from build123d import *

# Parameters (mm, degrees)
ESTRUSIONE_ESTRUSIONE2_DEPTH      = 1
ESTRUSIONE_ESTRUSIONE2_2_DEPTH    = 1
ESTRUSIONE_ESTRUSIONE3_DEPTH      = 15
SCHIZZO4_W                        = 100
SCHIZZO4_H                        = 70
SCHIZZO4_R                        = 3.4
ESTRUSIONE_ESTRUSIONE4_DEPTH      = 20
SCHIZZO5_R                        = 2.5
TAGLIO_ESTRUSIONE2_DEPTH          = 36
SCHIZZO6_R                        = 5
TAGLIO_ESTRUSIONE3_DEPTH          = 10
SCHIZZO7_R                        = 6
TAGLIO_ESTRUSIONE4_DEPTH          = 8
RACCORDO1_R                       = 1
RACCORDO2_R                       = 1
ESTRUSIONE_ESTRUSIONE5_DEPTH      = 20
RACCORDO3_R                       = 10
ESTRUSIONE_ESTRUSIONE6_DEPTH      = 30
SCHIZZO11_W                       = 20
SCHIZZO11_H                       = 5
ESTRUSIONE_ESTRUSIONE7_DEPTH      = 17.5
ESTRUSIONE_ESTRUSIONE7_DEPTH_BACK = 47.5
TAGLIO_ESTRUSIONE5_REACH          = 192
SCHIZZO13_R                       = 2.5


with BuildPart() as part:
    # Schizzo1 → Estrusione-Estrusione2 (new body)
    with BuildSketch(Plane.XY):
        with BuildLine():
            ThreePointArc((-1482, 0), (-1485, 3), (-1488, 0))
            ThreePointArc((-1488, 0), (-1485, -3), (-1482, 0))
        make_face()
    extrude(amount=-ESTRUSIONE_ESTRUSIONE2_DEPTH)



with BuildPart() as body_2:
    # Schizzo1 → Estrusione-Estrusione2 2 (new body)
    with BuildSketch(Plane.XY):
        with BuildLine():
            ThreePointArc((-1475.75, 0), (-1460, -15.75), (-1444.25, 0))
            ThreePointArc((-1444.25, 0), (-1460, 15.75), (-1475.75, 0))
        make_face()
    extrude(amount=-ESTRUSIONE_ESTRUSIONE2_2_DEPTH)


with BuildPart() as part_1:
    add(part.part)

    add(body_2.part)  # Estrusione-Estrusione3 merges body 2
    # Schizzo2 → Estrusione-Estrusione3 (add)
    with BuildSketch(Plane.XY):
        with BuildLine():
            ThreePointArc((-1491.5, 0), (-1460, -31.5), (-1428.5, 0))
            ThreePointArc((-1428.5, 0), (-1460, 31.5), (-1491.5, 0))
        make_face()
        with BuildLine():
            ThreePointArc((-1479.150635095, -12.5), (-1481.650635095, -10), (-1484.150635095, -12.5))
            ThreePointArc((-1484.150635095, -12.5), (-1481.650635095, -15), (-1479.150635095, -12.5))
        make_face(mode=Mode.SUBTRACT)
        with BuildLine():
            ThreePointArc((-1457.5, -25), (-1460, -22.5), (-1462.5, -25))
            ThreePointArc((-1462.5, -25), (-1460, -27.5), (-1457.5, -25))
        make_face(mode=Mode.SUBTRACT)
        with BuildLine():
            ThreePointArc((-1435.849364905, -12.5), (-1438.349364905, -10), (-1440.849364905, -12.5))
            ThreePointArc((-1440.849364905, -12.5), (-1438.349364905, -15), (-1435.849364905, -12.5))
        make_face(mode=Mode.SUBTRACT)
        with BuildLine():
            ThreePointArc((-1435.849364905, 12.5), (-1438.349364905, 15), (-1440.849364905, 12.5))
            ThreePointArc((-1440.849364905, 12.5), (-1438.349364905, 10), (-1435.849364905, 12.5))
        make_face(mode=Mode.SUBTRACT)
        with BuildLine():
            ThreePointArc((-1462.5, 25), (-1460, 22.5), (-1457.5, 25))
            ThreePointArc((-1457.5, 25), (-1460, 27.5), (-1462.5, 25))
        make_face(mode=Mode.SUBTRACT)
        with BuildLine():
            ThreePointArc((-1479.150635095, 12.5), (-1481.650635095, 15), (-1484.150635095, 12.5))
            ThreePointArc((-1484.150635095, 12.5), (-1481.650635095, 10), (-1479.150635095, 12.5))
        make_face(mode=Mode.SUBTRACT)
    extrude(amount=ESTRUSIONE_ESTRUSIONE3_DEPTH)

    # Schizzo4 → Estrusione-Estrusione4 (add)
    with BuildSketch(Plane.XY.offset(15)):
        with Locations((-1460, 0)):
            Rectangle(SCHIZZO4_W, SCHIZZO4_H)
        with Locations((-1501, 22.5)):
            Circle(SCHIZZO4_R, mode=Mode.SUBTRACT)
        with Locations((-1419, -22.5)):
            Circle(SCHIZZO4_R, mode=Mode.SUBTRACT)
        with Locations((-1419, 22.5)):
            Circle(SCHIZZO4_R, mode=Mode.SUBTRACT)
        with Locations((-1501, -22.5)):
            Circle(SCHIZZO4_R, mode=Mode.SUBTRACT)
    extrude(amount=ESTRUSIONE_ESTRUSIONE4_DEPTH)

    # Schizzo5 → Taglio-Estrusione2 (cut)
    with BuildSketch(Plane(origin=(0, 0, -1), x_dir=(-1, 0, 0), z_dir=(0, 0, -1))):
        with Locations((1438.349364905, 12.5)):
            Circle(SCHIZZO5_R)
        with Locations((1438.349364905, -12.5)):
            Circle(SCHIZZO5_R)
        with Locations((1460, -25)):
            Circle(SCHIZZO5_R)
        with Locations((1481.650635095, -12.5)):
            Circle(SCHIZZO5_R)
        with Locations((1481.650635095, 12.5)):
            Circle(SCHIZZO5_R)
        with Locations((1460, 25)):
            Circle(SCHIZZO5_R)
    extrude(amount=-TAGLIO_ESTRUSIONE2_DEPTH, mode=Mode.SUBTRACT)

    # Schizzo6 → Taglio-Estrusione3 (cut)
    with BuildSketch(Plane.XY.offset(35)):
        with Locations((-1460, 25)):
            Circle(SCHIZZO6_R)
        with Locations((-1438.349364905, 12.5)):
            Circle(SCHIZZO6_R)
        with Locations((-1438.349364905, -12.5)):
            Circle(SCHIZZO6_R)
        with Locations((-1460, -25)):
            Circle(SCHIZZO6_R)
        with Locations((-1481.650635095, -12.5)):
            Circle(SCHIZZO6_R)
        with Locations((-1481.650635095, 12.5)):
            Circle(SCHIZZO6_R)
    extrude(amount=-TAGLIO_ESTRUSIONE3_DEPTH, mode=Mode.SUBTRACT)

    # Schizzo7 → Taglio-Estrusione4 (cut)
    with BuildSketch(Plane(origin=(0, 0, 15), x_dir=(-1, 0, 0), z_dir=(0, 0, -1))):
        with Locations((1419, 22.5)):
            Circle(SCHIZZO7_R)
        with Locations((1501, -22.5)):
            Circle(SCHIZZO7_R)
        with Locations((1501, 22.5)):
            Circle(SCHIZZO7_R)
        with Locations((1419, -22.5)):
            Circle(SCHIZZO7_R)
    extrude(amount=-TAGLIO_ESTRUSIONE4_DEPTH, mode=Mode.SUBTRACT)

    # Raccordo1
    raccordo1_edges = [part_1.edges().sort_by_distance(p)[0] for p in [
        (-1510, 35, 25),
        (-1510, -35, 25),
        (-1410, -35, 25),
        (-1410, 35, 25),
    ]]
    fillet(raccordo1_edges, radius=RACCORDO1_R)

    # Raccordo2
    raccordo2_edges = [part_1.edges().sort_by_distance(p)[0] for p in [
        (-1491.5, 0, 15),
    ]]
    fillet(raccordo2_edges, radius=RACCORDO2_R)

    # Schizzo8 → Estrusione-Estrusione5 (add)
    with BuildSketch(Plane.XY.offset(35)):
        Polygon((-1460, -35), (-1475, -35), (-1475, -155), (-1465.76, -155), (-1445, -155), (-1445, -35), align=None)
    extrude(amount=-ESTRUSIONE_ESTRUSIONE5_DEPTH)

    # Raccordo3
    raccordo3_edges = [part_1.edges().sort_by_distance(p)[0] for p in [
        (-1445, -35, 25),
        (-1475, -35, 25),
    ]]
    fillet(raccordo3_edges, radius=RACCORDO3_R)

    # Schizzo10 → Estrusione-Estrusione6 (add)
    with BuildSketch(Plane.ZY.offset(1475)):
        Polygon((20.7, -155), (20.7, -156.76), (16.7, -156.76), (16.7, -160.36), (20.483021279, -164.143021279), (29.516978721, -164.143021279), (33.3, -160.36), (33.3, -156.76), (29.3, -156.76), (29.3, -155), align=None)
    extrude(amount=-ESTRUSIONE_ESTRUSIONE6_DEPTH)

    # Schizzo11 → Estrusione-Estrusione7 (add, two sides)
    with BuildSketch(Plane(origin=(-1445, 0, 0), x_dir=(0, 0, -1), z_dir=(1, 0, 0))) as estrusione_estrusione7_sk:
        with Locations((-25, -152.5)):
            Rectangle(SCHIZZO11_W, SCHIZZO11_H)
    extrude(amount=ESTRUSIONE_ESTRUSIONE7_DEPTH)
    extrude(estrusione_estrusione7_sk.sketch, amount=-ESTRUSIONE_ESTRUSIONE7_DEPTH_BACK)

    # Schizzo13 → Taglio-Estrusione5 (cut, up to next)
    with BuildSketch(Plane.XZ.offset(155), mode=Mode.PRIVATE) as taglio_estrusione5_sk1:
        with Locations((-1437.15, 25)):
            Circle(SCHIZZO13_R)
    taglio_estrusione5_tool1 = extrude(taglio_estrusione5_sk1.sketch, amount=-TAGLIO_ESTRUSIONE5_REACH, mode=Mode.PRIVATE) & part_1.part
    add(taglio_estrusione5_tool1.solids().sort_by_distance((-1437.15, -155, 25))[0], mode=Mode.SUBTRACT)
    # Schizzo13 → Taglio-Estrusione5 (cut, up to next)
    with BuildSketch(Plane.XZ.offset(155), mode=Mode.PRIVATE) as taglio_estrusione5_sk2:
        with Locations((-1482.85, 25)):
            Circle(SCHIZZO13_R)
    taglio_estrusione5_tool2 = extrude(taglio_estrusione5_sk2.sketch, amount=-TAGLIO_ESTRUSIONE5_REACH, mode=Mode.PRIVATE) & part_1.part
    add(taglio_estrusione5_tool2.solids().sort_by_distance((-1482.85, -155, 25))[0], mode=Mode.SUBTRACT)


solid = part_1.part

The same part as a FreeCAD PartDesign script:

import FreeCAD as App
import Part
import Sketcher


def edges_at(feature, points):
    """Names of the edges that pass closest to the given points."""
    edges = feature.Shape.Edges
    near = lambda p: min(range(len(edges)), key=lambda i: edges[i].distToShape(Part.Vertex(*p))[0])
    return sorted({f"Edge{near(p) + 1}" for p in points})

doc = App.newDocument("Part")
body = doc.addObject("PartDesign::Body", "Body")

sketch1 = doc.addObject("Sketcher::SketchObject", "Sketch")
body.addObject(sketch1)
sketch1.AttachmentSupport = (doc.XY_Plane, [""])
sketch1.MapMode = "FlatFace"
sketch1.addGeometry(Part.Circle(App.Vector(-1485, 0, 0), App.Vector(0, 0, 1), 3), False)
sketch1.addConstraint(Sketcher.Constraint("PointOnObject", 0, 3, -1))
sketch1.addConstraint(Sketcher.Constraint("Diameter", 0, 6.0))
sketch1.addConstraint(Sketcher.Constraint("DistanceX", 0, 3, -1, 1, 1485.0))
pad1 = doc.addObject("PartDesign::Pad", "Pad")
body.addObject(pad1)
pad1.Profile = sketch1
pad1.Length = 1
pad1.Reversed = True
body2 = doc.addObject("PartDesign::Body", "Body001")

sketch2 = doc.addObject("Sketcher::SketchObject", "Sketch001")
body2.addObject(sketch2)
sketch2.AttachmentSupport = (doc.getObject("XY_Plane001"), [""])
sketch2.MapMode = "FlatFace"
sketch2.addGeometry(Part.Circle(App.Vector(-1460, 0, 0), App.Vector(0, 0, 1), 16), False)
sketch2.addConstraint(Sketcher.Constraint("PointOnObject", 0, 3, -1))
sketch2.addConstraint(Sketcher.Constraint("Diameter", 0, 31.5))
sketch2.addConstraint(Sketcher.Constraint("DistanceX", 0, 3, -1, 1, 1460.0))
pad2 = doc.addObject("PartDesign::Pad", "Pad001")
body2.addObject(pad2)
pad2.Profile = sketch2
pad2.Length = 1
pad2.Reversed = True
body.AllowCompound = True
doc.recompute()

boolean = doc.addObject("PartDesign::Boolean", "Boolean")
body.addObject(boolean)
boolean.Type = "Fuse"
boolean.addObjects([body2])

sketch3 = doc.addObject("Sketcher::SketchObject", "Sketch002")
body.addObject(sketch3)
sketch3.AttachmentSupport = (doc.XY_Plane, [""])
sketch3.MapMode = "FlatFace"
sketch3.addGeometry(Part.Circle(App.Vector(-1460, 0, 0), App.Vector(0, 0, 1), 31.5), False)
sketch3.addGeometry(Part.Circle(App.Vector(-1481.7, -12.5, 0), App.Vector(0, 0, 1), 2.5), False)
sketch3.addGeometry(Part.Circle(App.Vector(-1460, -25, 0), App.Vector(0, 0, 1), 2.5), False)
sketch3.addGeometry(Part.Circle(App.Vector(-1438.3, -12.5, 0), App.Vector(0, 0, 1), 2.5), False)
sketch3.addGeometry(Part.Circle(App.Vector(-1481.7, 12.5, 0), App.Vector(0, 0, 1), 2.5), False)
sketch3.addGeometry(Part.Circle(App.Vector(-1438.3, 12.5, 0), App.Vector(0, 0, 1), 2.5), False)
sketch3.addGeometry(Part.Circle(App.Vector(-1460, 25, 0), App.Vector(0, 0, 1), 2.5), False)
sketch3.addConstraint(Sketcher.Constraint("Equal", 1, 2))
sketch3.addConstraint(Sketcher.Constraint("Equal", 2, 3))
sketch3.addConstraint(Sketcher.Constraint("Equal", 3, 4))
sketch3.addConstraint(Sketcher.Constraint("Equal", 4, 5))
sketch3.addConstraint(Sketcher.Constraint("Equal", 5, 6))
sketch3.addConstraint(Sketcher.Constraint("Symmetric", 1, 3, 4, 3, -1))
sketch3.addConstraint(Sketcher.Constraint("Symmetric", 3, 3, 5, 3, -1))
sketch3.addConstraint(Sketcher.Constraint("Symmetric", 2, 3, 6, 3, -1))
sketch3.addConstraint(Sketcher.Constraint("PointOnObject", 0, 3, -1))
sketch3.addConstraint(Sketcher.Constraint("Horizontal", 1, 3, 3, 3))
sketch3.addConstraint(Sketcher.Constraint("Vertical", 0, 3, 2, 3))
sketch3.addConstraint(Sketcher.Constraint("Diameter", 0, 63.0))
sketch3.addConstraint(Sketcher.Constraint("Diameter", 1, 5.0))
sketch3.addConstraint(Sketcher.Constraint("DistanceX", 0, 3, -1, 1, 1460.0))
sketch3.addConstraint(Sketcher.Constraint("DistanceY", 2, 3, -1, 1, 25.0))
sketch3.addConstraint(Sketcher.Constraint("DistanceY", 1, 3, 4, 3, 25.0))
sketch3.addConstraint(Sketcher.Constraint("DistanceX", 1, 3, 3, 3, 43.30127))
sketch3.addConstraint(Sketcher.Constraint("DistanceX", 1, 3, -1, 1, 1481.650635))
pad3 = doc.addObject("PartDesign::Pad", "Pad002")
body.addObject(pad3)
pad3.Profile = sketch3
pad3.Length = 15

sketch4 = doc.addObject("Sketcher::SketchObject", "Sketch003")
body.addObject(sketch4)
sketch4.AttachmentSupport = (doc.XY_Plane, [""])
sketch4.MapMode = "FlatFace"
sketch4.AttachmentOffset = App.Placement(App.Vector(0, 0, 15), App.Rotation())
sketch4.addGeometry(Part.LineSegment(App.Vector(-1510, 35, 0), App.Vector(-1510, -35, 0)), False)
sketch4.addGeometry(Part.LineSegment(App.Vector(-1510, -35, 0), App.Vector(-1410, -35, 0)), False)
sketch4.addGeometry(Part.LineSegment(App.Vector(-1410, -35, 0), App.Vector(-1410, 35, 0)), False)
sketch4.addGeometry(Part.LineSegment(App.Vector(-1410, 35, 0), App.Vector(-1510, 35, 0)), False)
sketch4.addGeometry(Part.Circle(App.Vector(-1501, -22.5, 0), App.Vector(0, 0, 1), 3.4), False)
sketch4.addGeometry(Part.Circle(App.Vector(-1419, -22.5, 0), App.Vector(0, 0, 1), 3.4), False)
sketch4.addGeometry(Part.Circle(App.Vector(-1501, 22.5, 0), App.Vector(0, 0, 1), 3.4), False)
sketch4.addGeometry(Part.Circle(App.Vector(-1419, 22.5, 0), App.Vector(0, 0, 1), 3.4), False)
sketch4.addConstraint(Sketcher.Constraint("Coincident", 0, 2, 1, 1))
sketch4.addConstraint(Sketcher.Constraint("Coincident", 1, 2, 2, 1))
sketch4.addConstraint(Sketcher.Constraint("Coincident", 2, 2, 3, 1))
sketch4.addConstraint(Sketcher.Constraint("Coincident", 3, 2, 0, 1))
sketch4.addConstraint(Sketcher.Constraint("Vertical", 0))
sketch4.addConstraint(Sketcher.Constraint("Horizontal", 1))
sketch4.addConstraint(Sketcher.Constraint("Vertical", 2))
sketch4.addConstraint(Sketcher.Constraint("Horizontal", 3))
sketch4.addConstraint(Sketcher.Constraint("Equal", 4, 5))
sketch4.addConstraint(Sketcher.Constraint("Equal", 5, 6))
sketch4.addConstraint(Sketcher.Constraint("Equal", 6, 7))
sketch4.addConstraint(Sketcher.Constraint("Symmetric", 4, 3, 6, 3, -1))
sketch4.addConstraint(Sketcher.Constraint("Symmetric", 5, 3, 7, 3, -1))
sketch4.addConstraint(Sketcher.Constraint("Horizontal", 4, 3, 5, 3))
sketch4.addConstraint(Sketcher.Constraint("Diameter", 4, 6.8))
sketch4.addConstraint(Sketcher.Constraint("DistanceX", 1, 1, 1, 2, 100.0))
sketch4.addConstraint(Sketcher.Constraint("DistanceY", 0, 2, 0, 1, 70.0))
sketch4.addConstraint(Sketcher.Constraint("DistanceX", 4, 3, -1, 1, 1501.0))
sketch4.addConstraint(Sketcher.Constraint("DistanceX", 5, 3, -1, 1, 1419.0))
sketch4.addConstraint(Sketcher.Constraint("DistanceX", 0, 2, -1, 1, 1510.0))
sketch4.addConstraint(Sketcher.Constraint("DistanceY", 0, 2, -1, 1, 35.0))
sketch4.addConstraint(Sketcher.Constraint("DistanceY", 4, 3, 6, 3, 45.0))
pad4 = doc.addObject("PartDesign::Pad", "Pad003")
body.addObject(pad4)
pad4.Profile = sketch4
pad4.Length = 20

sketch5 = doc.addObject("Sketcher::SketchObject", "Sketch004")
body.addObject(sketch5)
sketch5.AttachmentSupport = (doc.XY_Plane, [""])
sketch5.MapMode = "FlatFace"
sketch5.AttachmentOffset = App.Placement(App.Vector(0, 0, -1), App.Rotation())
sketch5.addGeometry(Part.Circle(App.Vector(-1438.3, 12.5, 0), App.Vector(0, 0, 1), 2.5), False)
sketch5.addGeometry(Part.Circle(App.Vector(-1438.3, -12.5, 0), App.Vector(0, 0, 1), 2.5), False)
sketch5.addGeometry(Part.Circle(App.Vector(-1460, -25, 0), App.Vector(0, 0, 1), 2.5), False)
sketch5.addGeometry(Part.Circle(App.Vector(-1481.7, -12.5, 0), App.Vector(0, 0, 1), 2.5), False)
sketch5.addGeometry(Part.Circle(App.Vector(-1481.7, 12.5, 0), App.Vector(0, 0, 1), 2.5), False)
sketch5.addGeometry(Part.Circle(App.Vector(-1460, 25, 0), App.Vector(0, 0, 1), 2.5), False)
sketch5.addConstraint(Sketcher.Constraint("Equal", 0, 1))
sketch5.addConstraint(Sketcher.Constraint("Equal", 1, 2))
sketch5.addConstraint(Sketcher.Constraint("Equal", 2, 3))
sketch5.addConstraint(Sketcher.Constraint("Equal", 3, 4))
sketch5.addConstraint(Sketcher.Constraint("Equal", 4, 5))
sketch5.addConstraint(Sketcher.Constraint("Symmetric", 0, 3, 1, 3, -1))
sketch5.addConstraint(Sketcher.Constraint("Symmetric", 3, 3, 4, 3, -1))
sketch5.addConstraint(Sketcher.Constraint("Symmetric", 2, 3, 5, 3, -1))
sketch5.addConstraint(Sketcher.Constraint("Horizontal", 1, 3, 3, 3))
sketch5.addConstraint(Sketcher.Constraint("Diameter", 0, 5.0))
sketch5.addConstraint(Sketcher.Constraint("DistanceX", 2, 3, -1, 1, 1460.0))
sketch5.addConstraint(Sketcher.Constraint("DistanceY", 2, 3, -1, 1, 25.0))
sketch5.addConstraint(Sketcher.Constraint("DistanceY", 1, 3, 0, 3, 25.0))
sketch5.addConstraint(Sketcher.Constraint("DistanceX", 3, 3, 1, 3, 43.30127))
sketch5.addConstraint(Sketcher.Constraint("DistanceX", 0, 3, -1, 1, 1438.349365))
pocket1 = doc.addObject("PartDesign::Pocket", "Pocket")
body.addObject(pocket1)
pocket1.Profile = sketch5
pocket1.Length = 36
pocket1.Reversed = True

sketch6 = doc.addObject("Sketcher::SketchObject", "Sketch005")
body.addObject(sketch6)
sketch6.AttachmentSupport = (doc.XY_Plane, [""])
sketch6.MapMode = "FlatFace"
sketch6.AttachmentOffset = App.Placement(App.Vector(0, 0, 35), App.Rotation())
sketch6.addGeometry(Part.Circle(App.Vector(-1460, 25, 0), App.Vector(0, 0, 1), 5), False)
sketch6.addGeometry(Part.Circle(App.Vector(-1438, 12, 0), App.Vector(0, 0, 1), 5), False)
sketch6.addGeometry(Part.Circle(App.Vector(-1438, -12, 0), App.Vector(0, 0, 1), 5), False)
sketch6.addGeometry(Part.Circle(App.Vector(-1460, -25, 0), App.Vector(0, 0, 1), 5), False)
sketch6.addGeometry(Part.Circle(App.Vector(-1482, -12, 0), App.Vector(0, 0, 1), 5), False)
sketch6.addGeometry(Part.Circle(App.Vector(-1482, 12, 0), App.Vector(0, 0, 1), 5), False)
sketch6.addConstraint(Sketcher.Constraint("Equal", 0, 1))
sketch6.addConstraint(Sketcher.Constraint("Equal", 1, 2))
sketch6.addConstraint(Sketcher.Constraint("Equal", 2, 3))
sketch6.addConstraint(Sketcher.Constraint("Equal", 3, 4))
sketch6.addConstraint(Sketcher.Constraint("Equal", 4, 5))
sketch6.addConstraint(Sketcher.Constraint("Symmetric", 1, 3, 2, 3, -1))
sketch6.addConstraint(Sketcher.Constraint("Symmetric", 0, 3, 3, 3, -1))
sketch6.addConstraint(Sketcher.Constraint("Symmetric", 4, 3, 5, 3, -1))
sketch6.addConstraint(Sketcher.Constraint("Horizontal", 2, 3, 4, 3))
sketch6.addConstraint(Sketcher.Constraint("Diameter", 0, 10.0))
sketch6.addConstraint(Sketcher.Constraint("DistanceX", 0, 3, -1, 1, 1460.0))
sketch6.addConstraint(Sketcher.Constraint("DistanceY", -1, 1, 0, 3, 25.0))
sketch6.addConstraint(Sketcher.Constraint("DistanceY", 2, 3, 1, 3, 25.0))
sketch6.addConstraint(Sketcher.Constraint("DistanceX", 4, 3, 2, 3, 43.30127))
sketch6.addConstraint(Sketcher.Constraint("DistanceX", 1, 3, -1, 1, 1438.349365))
pocket2 = doc.addObject("PartDesign::Pocket", "Pocket001")
body.addObject(pocket2)
pocket2.Profile = sketch6
pocket2.Length = 10

sketch7 = doc.addObject("Sketcher::SketchObject", "Sketch006")
body.addObject(sketch7)
sketch7.AttachmentSupport = (doc.XY_Plane, [""])
sketch7.MapMode = "FlatFace"
sketch7.AttachmentOffset = App.Placement(App.Vector(0, 0, 15), App.Rotation())
sketch7.addGeometry(Part.Circle(App.Vector(-1419, 22, 0), App.Vector(0, 0, 1), 6), False)
sketch7.addGeometry(Part.Circle(App.Vector(-1501, -22, 0), App.Vector(0, 0, 1), 6), False)
sketch7.addGeometry(Part.Circle(App.Vector(-1501, 22, 0), App.Vector(0, 0, 1), 6), False)
sketch7.addGeometry(Part.Circle(App.Vector(-1419, -22, 0), App.Vector(0, 0, 1), 6), False)
sketch7.addConstraint(Sketcher.Constraint("Equal", 0, 1))
sketch7.addConstraint(Sketcher.Constraint("Equal", 1, 2))
sketch7.addConstraint(Sketcher.Constraint("Equal", 2, 3))
sketch7.addConstraint(Sketcher.Constraint("Symmetric", 1, 3, 2, 3, -1))
sketch7.addConstraint(Sketcher.Constraint("Symmetric", 0, 3, 3, 3, -1))
sketch7.addConstraint(Sketcher.Constraint("Horizontal", 0, 3, 2, 3))
sketch7.addConstraint(Sketcher.Constraint("Diameter", 0, 12.0))
sketch7.addConstraint(Sketcher.Constraint("DistanceX", 0, 3, -1, 1, 1419.0))
sketch7.addConstraint(Sketcher.Constraint("DistanceX", 1, 3, -1, 1, 1501.0))
sketch7.addConstraint(Sketcher.Constraint("DistanceY", 1, 3, 0, 3, 45.0))
pocket3 = doc.addObject("PartDesign::Pocket", "Pocket002")
body.addObject(pocket3)
pocket3.Profile = sketch7
pocket3.Length = 8
pocket3.Reversed = True
doc.recompute()

fillet = doc.addObject("PartDesign::Fillet", "Fillet")
body.addObject(fillet)
fillet.Base = (pocket3, edges_at(pocket3, [
    (-1510, 35, 25),
    (-1510, -35, 25),
    (-1410, -35, 25),
    (-1410, 35, 25),
]))
fillet.Radius = 1
doc.recompute()

fillet2 = doc.addObject("PartDesign::Fillet", "Fillet001")
body.addObject(fillet2)
fillet2.Base = (fillet, edges_at(fillet, [(-1491.5, 0, 15)]))
fillet2.Radius = 1

sketch8 = doc.addObject("Sketcher::SketchObject", "Sketch007")
body.addObject(sketch8)
sketch8.AttachmentSupport = (doc.XY_Plane, [""])
sketch8.MapMode = "FlatFace"
sketch8.AttachmentOffset = App.Placement(App.Vector(0, 0, 35), App.Rotation())
sketch8.addGeometry(Part.LineSegment(App.Vector(-1475, -35, 0), App.Vector(-1475, -155, 0)), False)
sketch8.addGeometry(Part.LineSegment(App.Vector(-1475, -155, 0), App.Vector(-1445, -155, 0)), False)
sketch8.addGeometry(Part.LineSegment(App.Vector(-1445, -155, 0), App.Vector(-1445, -35, 0)), False)
sketch8.addGeometry(Part.LineSegment(App.Vector(-1445, -35, 0), App.Vector(-1475, -35, 0)), False)
sketch8.addConstraint(Sketcher.Constraint("Coincident", 0, 2, 1, 1))
sketch8.addConstraint(Sketcher.Constraint("Coincident", 1, 2, 2, 1))
sketch8.addConstraint(Sketcher.Constraint("Coincident", 2, 2, 3, 1))
sketch8.addConstraint(Sketcher.Constraint("Coincident", 3, 2, 0, 1))
sketch8.addConstraint(Sketcher.Constraint("Vertical", 0))
sketch8.addConstraint(Sketcher.Constraint("Horizontal", 1))
sketch8.addConstraint(Sketcher.Constraint("Vertical", 2))
sketch8.addConstraint(Sketcher.Constraint("Horizontal", 3))
sketch8.addConstraint(Sketcher.Constraint("DistanceX", 1, 1, 1, 2, 30.0))
sketch8.addConstraint(Sketcher.Constraint("DistanceY", 0, 2, 0, 1, 120.0))
sketch8.addConstraint(Sketcher.Constraint("DistanceX", 0, 2, -1, 1, 1475.0))
sketch8.addConstraint(Sketcher.Constraint("DistanceY", 0, 2, -1, 1, 155.0))
pad5 = doc.addObject("PartDesign::Pad", "Pad004")
body.addObject(pad5)
pad5.Profile = sketch8
pad5.Length = 20
pad5.Reversed = True
doc.recompute()

fillet3 = doc.addObject("PartDesign::Fillet", "Fillet002")
body.addObject(fillet3)
fillet3.Base = (pad5, edges_at(pad5, [(-1445, -35, 25), (-1475, -35, 25)]))
fillet3.Radius = 10

sketch9 = doc.addObject("Sketcher::SketchObject", "Sketch008")
body.addObject(sketch9)
sketch9.AttachmentSupport = (doc.YZ_Plane, [""])
sketch9.MapMode = "FlatFace"
sketch9.AttachmentOffset = App.Placement(App.Vector(0, 0, -1475), App.Rotation())
sketch9.addGeometry(Part.LineSegment(App.Vector(-155, 20.7, 0), App.Vector(-156.8, 20.7, 0)), False)
sketch9.addGeometry(Part.LineSegment(App.Vector(-156.8, 20.7, 0), App.Vector(-156.8, 16.7, 0)), False)
sketch9.addGeometry(Part.LineSegment(App.Vector(-156.8, 16.7, 0), App.Vector(-160.4, 16.7, 0)), False)
sketch9.addGeometry(Part.LineSegment(App.Vector(-160.4, 16.7, 0), App.Vector(-164.1, 20.5, 0)), False)
sketch9.addGeometry(Part.LineSegment(App.Vector(-164.1, 20.5, 0), App.Vector(-164.1, 29.5, 0)), False)
sketch9.addGeometry(Part.LineSegment(App.Vector(-164.1, 29.5, 0), App.Vector(-160.4, 33.3, 0)), False)
sketch9.addGeometry(Part.LineSegment(App.Vector(-160.4, 33.3, 0), App.Vector(-156.8, 33.3, 0)), False)
sketch9.addGeometry(Part.LineSegment(App.Vector(-156.8, 33.3, 0), App.Vector(-156.8, 29.3, 0)), False)
sketch9.addGeometry(Part.LineSegment(App.Vector(-156.8, 29.3, 0), App.Vector(-155, 29.3, 0)), False)
sketch9.addGeometry(Part.LineSegment(App.Vector(-155, 29.3, 0), App.Vector(-155, 20.7, 0)), False)
sketch9.addConstraint(Sketcher.Constraint("Coincident", 0, 2, 1, 1))
sketch9.addConstraint(Sketcher.Constraint("Coincident", 1, 2, 2, 1))
sketch9.addConstraint(Sketcher.Constraint("Coincident", 2, 2, 3, 1))
sketch9.addConstraint(Sketcher.Constraint("Coincident", 3, 2, 4, 1))
sketch9.addConstraint(Sketcher.Constraint("Coincident", 4, 2, 5, 1))
sketch9.addConstraint(Sketcher.Constraint("Coincident", 5, 2, 6, 1))
sketch9.addConstraint(Sketcher.Constraint("Coincident", 6, 2, 7, 1))
sketch9.addConstraint(Sketcher.Constraint("Coincident", 7, 2, 8, 1))
sketch9.addConstraint(Sketcher.Constraint("Coincident", 8, 2, 9, 1))
sketch9.addConstraint(Sketcher.Constraint("Coincident", 9, 2, 0, 1))
sketch9.addConstraint(Sketcher.Constraint("Horizontal", 0))
sketch9.addConstraint(Sketcher.Constraint("Vertical", 1))
sketch9.addConstraint(Sketcher.Constraint("Horizontal", 2))
sketch9.addConstraint(Sketcher.Constraint("Vertical", 4))
sketch9.addConstraint(Sketcher.Constraint("Horizontal", 6))
sketch9.addConstraint(Sketcher.Constraint("Vertical", 7))
sketch9.addConstraint(Sketcher.Constraint("Horizontal", 8))
sketch9.addConstraint(Sketcher.Constraint("Vertical", 9))
sketch9.addConstraint(Sketcher.Constraint("Perpendicular", 3, 5))
sketch9.addConstraint(Sketcher.Constraint("Vertical", 2, 2, 5, 2))
sketch9.addConstraint(Sketcher.Constraint("Vertical", 1, 2, 6, 2))
sketch9.addConstraint(Sketcher.Constraint("Equal", 1, 7))
sketch9.addConstraint(Sketcher.Constraint("Equal", 3, 5))
sketch9.addConstraint(Sketcher.Constraint("DistanceY", 1, 2, 1, 1, 4.0))
sketch9.addConstraint(Sketcher.Constraint("DistanceX", 2, 2, 2, 1, 3.6))
sketch9.addConstraint(Sketcher.Constraint("DistanceY", 9, 2, 9, 1, 8.6))
sketch9.addConstraint(Sketcher.Constraint("DistanceX", 8, 2, -1, 1, 155.0))
sketch9.addConstraint(Sketcher.Constraint("DistanceX", 0, 2, 0, 1, 1.76))
sketch9.addConstraint(Sketcher.Constraint("DistanceY", -1, 1, 0, 2, 20.7))
sketch9.addConstraint(Sketcher.Constraint("Distance", 3, 5.35))
pad6 = doc.addObject("PartDesign::Pad", "Pad005")
body.addObject(pad6)
pad6.Profile = sketch9
pad6.Length = 30

sketch10 = doc.addObject("Sketcher::SketchObject", "Sketch009")
body.addObject(sketch10)
sketch10.AttachmentSupport = (doc.YZ_Plane, [""])
sketch10.MapMode = "FlatFace"
sketch10.AttachmentOffset = App.Placement(App.Vector(0, 0, -1445), App.Rotation())
sketch10.addGeometry(Part.LineSegment(App.Vector(-150, 35, 0), App.Vector(-155, 35, 0)), False)
sketch10.addGeometry(Part.LineSegment(App.Vector(-155, 35, 0), App.Vector(-155, 15, 0)), False)
sketch10.addGeometry(Part.LineSegment(App.Vector(-155, 15, 0), App.Vector(-150, 15, 0)), False)
sketch10.addGeometry(Part.LineSegment(App.Vector(-150, 15, 0), App.Vector(-150, 35, 0)), False)
sketch10.addConstraint(Sketcher.Constraint("Coincident", 0, 2, 1, 1))
sketch10.addConstraint(Sketcher.Constraint("Coincident", 1, 2, 2, 1))
sketch10.addConstraint(Sketcher.Constraint("Coincident", 2, 2, 3, 1))
sketch10.addConstraint(Sketcher.Constraint("Coincident", 3, 2, 0, 1))
sketch10.addConstraint(Sketcher.Constraint("Horizontal", 0))
sketch10.addConstraint(Sketcher.Constraint("Vertical", 1))
sketch10.addConstraint(Sketcher.Constraint("Horizontal", 2))
sketch10.addConstraint(Sketcher.Constraint("Vertical", 3))
sketch10.addConstraint(Sketcher.Constraint("DistanceX", 0, 2, 0, 1, 5.0))
sketch10.addConstraint(Sketcher.Constraint("DistanceY", 1, 2, 1, 1, 20.0))
sketch10.addConstraint(Sketcher.Constraint("DistanceX", 0, 2, -1, 1, 155.0))
sketch10.addConstraint(Sketcher.Constraint("DistanceY", -1, 1, 0, 2, 35.0))
pad7 = doc.addObject("PartDesign::Pad", "Pad006")
body.addObject(pad7)
pad7.Profile = sketch10
pad7.Type = "TwoLengths"
pad7.Length = 17.5
pad7.Length2 = 47.5

sketch11 = doc.addObject("Sketcher::SketchObject", "Sketch010")
body.addObject(sketch11)
sketch11.AttachmentSupport = (doc.XZ_Plane, [""])
sketch11.MapMode = "FlatFace"
sketch11.AttachmentOffset = App.Placement(App.Vector(0, 0, 155), App.Rotation())
sketch11.addGeometry(Part.Circle(App.Vector(-1437.2, 25, 0), App.Vector(0, 0, 1), 2.5), False)
sketch11.addConstraint(Sketcher.Constraint("Diameter", 0, 5.0))
sketch11.addConstraint(Sketcher.Constraint("DistanceY", -1, 1, 0, 3, 25.0))
sketch11.addConstraint(Sketcher.Constraint("DistanceX", 0, 3, -1, 1, 1437.15))
pocket4 = doc.addObject("PartDesign::Pocket", "Pocket003")
body.addObject(pocket4)
pocket4.Profile = sketch11
pocket4.Type = "UpToFirst"

sketch12 = doc.addObject("Sketcher::SketchObject", "Sketch011")
body.addObject(sketch12)
sketch12.AttachmentSupport = (doc.XZ_Plane, [""])
sketch12.MapMode = "FlatFace"
sketch12.AttachmentOffset = App.Placement(App.Vector(0, 0, 155), App.Rotation())
sketch12.addGeometry(Part.Circle(App.Vector(-1482.8, 25, 0), App.Vector(0, 0, 1), 2.5), False)
sketch12.addConstraint(Sketcher.Constraint("Diameter", 0, 5.0))
sketch12.addConstraint(Sketcher.Constraint("DistanceY", -1, 1, 0, 3, 25.0))
sketch12.addConstraint(Sketcher.Constraint("DistanceX", 0, 3, -1, 1, 1482.85))
pocket5 = doc.addObject("PartDesign::Pocket", "Pocket004")
body.addObject(pocket5)
pocket5.Profile = sketch12
pocket5.Type = "UpToFirst"

doc.recompute()
